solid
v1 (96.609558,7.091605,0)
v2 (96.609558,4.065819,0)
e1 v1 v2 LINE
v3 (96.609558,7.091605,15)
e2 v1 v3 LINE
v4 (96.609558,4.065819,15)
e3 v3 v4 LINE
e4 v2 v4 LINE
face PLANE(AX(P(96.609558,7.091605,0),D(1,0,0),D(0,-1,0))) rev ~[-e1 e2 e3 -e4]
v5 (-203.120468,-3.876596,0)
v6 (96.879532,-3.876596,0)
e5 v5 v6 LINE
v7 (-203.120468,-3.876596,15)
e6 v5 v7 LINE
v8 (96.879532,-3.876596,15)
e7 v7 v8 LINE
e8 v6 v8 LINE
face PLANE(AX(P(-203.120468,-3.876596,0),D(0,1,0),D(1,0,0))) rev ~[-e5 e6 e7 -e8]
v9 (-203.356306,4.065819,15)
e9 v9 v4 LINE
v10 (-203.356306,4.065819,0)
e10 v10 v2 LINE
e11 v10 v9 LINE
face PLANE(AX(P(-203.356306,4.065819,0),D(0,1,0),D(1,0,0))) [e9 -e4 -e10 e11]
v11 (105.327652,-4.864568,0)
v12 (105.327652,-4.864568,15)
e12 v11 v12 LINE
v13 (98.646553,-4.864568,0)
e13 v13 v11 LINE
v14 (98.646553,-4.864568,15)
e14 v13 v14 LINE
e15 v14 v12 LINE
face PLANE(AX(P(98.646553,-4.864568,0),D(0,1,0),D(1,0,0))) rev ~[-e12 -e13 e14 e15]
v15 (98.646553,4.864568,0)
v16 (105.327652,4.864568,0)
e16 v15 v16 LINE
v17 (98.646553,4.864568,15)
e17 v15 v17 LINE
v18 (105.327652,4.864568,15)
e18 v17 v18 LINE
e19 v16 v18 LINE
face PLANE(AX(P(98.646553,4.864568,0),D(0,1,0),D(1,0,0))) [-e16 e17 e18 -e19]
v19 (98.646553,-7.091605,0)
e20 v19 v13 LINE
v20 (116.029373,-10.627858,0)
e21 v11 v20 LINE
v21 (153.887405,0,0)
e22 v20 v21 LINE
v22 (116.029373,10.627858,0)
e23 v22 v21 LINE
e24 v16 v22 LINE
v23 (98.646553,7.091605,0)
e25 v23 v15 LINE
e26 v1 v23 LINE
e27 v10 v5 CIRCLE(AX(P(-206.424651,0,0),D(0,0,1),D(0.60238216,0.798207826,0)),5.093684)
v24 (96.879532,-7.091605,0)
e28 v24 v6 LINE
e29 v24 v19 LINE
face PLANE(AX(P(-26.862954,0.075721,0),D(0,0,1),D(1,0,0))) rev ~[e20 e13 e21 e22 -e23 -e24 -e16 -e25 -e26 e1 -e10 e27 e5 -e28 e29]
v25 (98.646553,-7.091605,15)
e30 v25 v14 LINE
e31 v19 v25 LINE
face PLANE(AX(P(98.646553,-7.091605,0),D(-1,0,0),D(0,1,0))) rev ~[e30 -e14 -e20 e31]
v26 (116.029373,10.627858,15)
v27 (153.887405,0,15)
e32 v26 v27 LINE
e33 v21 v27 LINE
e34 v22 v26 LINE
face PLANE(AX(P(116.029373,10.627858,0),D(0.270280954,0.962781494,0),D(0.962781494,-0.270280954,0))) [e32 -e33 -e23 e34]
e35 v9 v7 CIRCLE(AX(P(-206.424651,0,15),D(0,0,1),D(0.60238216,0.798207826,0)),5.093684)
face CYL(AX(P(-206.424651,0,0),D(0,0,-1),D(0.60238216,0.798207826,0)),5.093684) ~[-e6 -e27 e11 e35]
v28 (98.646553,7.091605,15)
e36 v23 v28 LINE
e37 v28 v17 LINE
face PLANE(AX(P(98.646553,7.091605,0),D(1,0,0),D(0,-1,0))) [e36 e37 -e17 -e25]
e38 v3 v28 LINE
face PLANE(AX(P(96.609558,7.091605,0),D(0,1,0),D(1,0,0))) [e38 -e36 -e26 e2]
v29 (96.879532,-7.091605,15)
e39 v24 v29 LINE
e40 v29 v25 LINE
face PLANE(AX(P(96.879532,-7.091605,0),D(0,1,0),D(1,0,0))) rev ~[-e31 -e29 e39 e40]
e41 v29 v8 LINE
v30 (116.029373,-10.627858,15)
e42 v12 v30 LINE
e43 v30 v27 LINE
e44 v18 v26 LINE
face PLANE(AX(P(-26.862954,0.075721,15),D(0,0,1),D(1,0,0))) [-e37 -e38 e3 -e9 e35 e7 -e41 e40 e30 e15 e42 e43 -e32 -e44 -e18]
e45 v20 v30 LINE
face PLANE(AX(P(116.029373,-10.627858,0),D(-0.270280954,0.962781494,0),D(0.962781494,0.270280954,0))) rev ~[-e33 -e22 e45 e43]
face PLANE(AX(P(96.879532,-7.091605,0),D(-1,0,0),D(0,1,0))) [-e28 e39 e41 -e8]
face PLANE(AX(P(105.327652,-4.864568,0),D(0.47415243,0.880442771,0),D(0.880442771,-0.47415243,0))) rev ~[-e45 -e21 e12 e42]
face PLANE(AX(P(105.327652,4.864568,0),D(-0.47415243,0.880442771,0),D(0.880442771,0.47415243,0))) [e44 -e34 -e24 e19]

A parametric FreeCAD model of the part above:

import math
import FreeCAD as App
import Part
import Sketcher

V = App.Vector
Q = App.Units.Quantity

doc = App.newDocument("Part")
params = doc.addObject("Spreadsheet::Sheet", "Params")
for row, (alias, value) in enumerate([
    ("sketch1_width", "300 mm"),
    ("pad1_length", "15 mm"),
], start=1):
    params.set(f"A{row}", alias)
    params.set(f"B{row}", "=" + value)
    params.setAlias(f"B{row}", alias)

body = doc.addObject("PartDesign::Body", "Body")

sketch1 = doc.addObject("Sketcher::SketchObject", "Sketch")
body.addObject(sketch1)
sketch1.AttachmentSupport = (doc.XY_Plane, [""])
sketch1.MapMode = "FlatFace"
sketch1.addGeometry(Part.LineSegment(V(-203.120468, -3.876596, 0), V(96.879532, -3.876596, 0)), False)
sketch1.addGeometry(Part.LineSegment(V(96.879532, -3.876596, 0), V(96.879532, -7.091605, 0)), False)
sketch1.addGeometry(Part.LineSegment(V(96.879532, -7.091605, 0), V(98.646553, -7.091605, 0)), False)
sketch1.addGeometry(Part.LineSegment(V(98.646553, -7.091605, 0), V(98.646553, -4.864568, 0)), False)
sketch1.addGeometry(Part.LineSegment(V(98.646553, -4.864568, 0), V(105.327652, -4.864568, 0)), False)
sketch1.addGeometry(Part.LineSegment(V(105.327652, -4.864568, 0), V(116.029373, -10.627858, 0)), False)
sketch1.addGeometry(Part.LineSegment(V(116.029373, -10.627858, 0), V(153.887405, 0, 0)), False)
sketch1.addGeometry(Part.LineSegment(V(153.887405, 0, 0), V(116.029373, 10.627858, 0)), False)
sketch1.addGeometry(Part.LineSegment(V(116.029373, 10.627858, 0), V(105.327652, 4.864568, 0)), False)
sketch1.addGeometry(Part.LineSegment(V(105.327652, 4.864568, 0), V(98.646553, 4.864568, 0)), False)
sketch1.addGeometry(Part.LineSegment(V(98.646553, 4.864568, 0), V(98.646553, 7.091605, 0)), False)
sketch1.addGeometry(Part.LineSegment(V(98.646553, 7.091605, 0), V(96.609558, 7.091605, 0)), False)
sketch1.addGeometry(Part.LineSegment(V(96.609558, 7.091605, 0), V(96.609558, 4.065819, 0)), False)
sketch1.addGeometry(Part.LineSegment(V(96.609558, 4.065819, 0), V(-203.356306, 4.065819, 0)), False)
sketch1.addGeometry(Part.ArcOfCircle(Part.Circle(V(-206.424651, 0, 0), V(0, 0, 1), 5.093684), math.radians(52.959302), math.radians(310.442322)), False)
sketch1.addConstraint(Sketcher.Constraint("Coincident", 0, 2, 1, 1))
sketch1.addConstraint(Sketcher.Constraint("Coincident", 1, 2, 2, 1))
sketch1.addConstraint(Sketcher.Constraint("Coincident", 2, 2, 3, 1))
sketch1.addConstraint(Sketcher.Constraint("Coincident", 3, 2, 4, 1))
sketch1.addConstraint(Sketcher.Constraint("Coincident", 4, 2, 5, 1))
sketch1.addConstraint(Sketcher.Constraint("Coincident", 5, 2, 6, 1))
sketch1.addConstraint(Sketcher.Constraint("Coincident", 6, 2, 7, 1))
sketch1.addConstraint(Sketcher.Constraint("Coincident", 7, 2, 8, 1))
sketch1.addConstraint(Sketcher.Constraint("Coincident", 8, 2, 9, 1))
sketch1.addConstraint(Sketcher.Constraint("Coincident", 9, 2, 10, 1))
sketch1.addConstraint(Sketcher.Constraint("Coincident", 10, 2, 11, 1))
sketch1.addConstraint(Sketcher.Constraint("Coincident", 11, 2, 12, 1))
sketch1.addConstraint(Sketcher.Constraint("Coincident", 12, 2, 13, 1))
sketch1.addConstraint(Sketcher.Constraint("Coincident", 13, 2, 14, 1))
sketch1.addConstraint(Sketcher.Constraint("Coincident", 14, 2, 0, 1))
sketch1.addConstraint(Sketcher.Constraint("Horizontal", 0))
sketch1.addConstraint(Sketcher.Constraint("Vertical", 1))
sketch1.addConstraint(Sketcher.Constraint("Horizontal", 2))
sketch1.addConstraint(Sketcher.Constraint("Vertical", 3))
sketch1.addConstraint(Sketcher.Constraint("Horizontal", 4))
sketch1.addConstraint(Sketcher.Constraint("Horizontal", 9))
sketch1.addConstraint(Sketcher.Constraint("Vertical", 10))
sketch1.addConstraint(Sketcher.Constraint("Horizontal", 11))
sketch1.addConstraint(Sketcher.Constraint("Vertical", 12))
sketch1.addConstraint(Sketcher.Constraint("Horizontal", 13))
sketch1.addConstraint(Sketcher.Constraint("Symmetric", 5, 2, 7, 2, -1))
sketch1.addConstraint(Sketcher.Constraint("Symmetric", 4, 2, 8, 2, -1))
sketch1.addConstraint(Sketcher.Constraint("Symmetric", 2, 2, 10, 2, -1))
sketch1.addConstraint(Sketcher.Constraint("PointOnObject", 14, 3, -1))
sketch1.addConstraint(Sketcher.Constraint("PointOnObject", 6, 2, -1))
sketch1.addConstraint(Sketcher.Constraint("DistanceX", 0, 1, 0, 2, Q("300 mm")))
sketch1.addConstraint(Sketcher.Constraint("DistanceX", 4, 1, 4, 2, Q("6.681099 mm")))
sketch1.addConstraint(Sketcher.Constraint("Radius", 14, Q("5.093684 mm")))
sketch1.addConstraint(Sketcher.Constraint("DistanceX", 2, 1, 2, 2, Q("1.767021 mm")))
sketch1.addConstraint(Sketcher.Constraint("DistanceY", 1, 2, 1, 1, Q("3.215009 mm")))
sketch1.addConstraint(Sketcher.Constraint("DistanceY", 0, 2, 10, 2, Q("10.968201 mm")))
sketch1.addConstraint(Sketcher.Constraint("Distance", 5, Q("12.154931 mm")))
sketch1.addConstraint(Sketcher.Constraint("Distance", 6, Q("39.32152 mm")))
sketch1.addConstraint(Sketcher.Constraint("DistanceX", 11, 2, 11, 1, Q("2.036995 mm")))
sketch1.addConstraint(Sketcher.Constraint("DistanceX", 13, 2, 13, 1, Q("299.965864 mm")))
sketch1.addConstraint(Sketcher.Constraint("DistanceY", 3, 1, 3, 2, Q("2.227037 mm")))
sketch1.addConstraint(Sketcher.Constraint("DistanceX", 14, 3, -1, 1, Q("206.424651 mm")))
sketch1.addConstraint(Sketcher.Constraint("DistanceX", 4, 2, 5, 2, Q("10.701721 mm")))
sketch1.setExpression("Constraints[30]", "Params.sketch1_width")
pad1 = doc.addObject("PartDesign::Pad", "Pad")
body.addObject(pad1)
pad1.Profile = sketch1
pad1.setExpression("Length", "Params.pad1_length")

doc.recompute()
